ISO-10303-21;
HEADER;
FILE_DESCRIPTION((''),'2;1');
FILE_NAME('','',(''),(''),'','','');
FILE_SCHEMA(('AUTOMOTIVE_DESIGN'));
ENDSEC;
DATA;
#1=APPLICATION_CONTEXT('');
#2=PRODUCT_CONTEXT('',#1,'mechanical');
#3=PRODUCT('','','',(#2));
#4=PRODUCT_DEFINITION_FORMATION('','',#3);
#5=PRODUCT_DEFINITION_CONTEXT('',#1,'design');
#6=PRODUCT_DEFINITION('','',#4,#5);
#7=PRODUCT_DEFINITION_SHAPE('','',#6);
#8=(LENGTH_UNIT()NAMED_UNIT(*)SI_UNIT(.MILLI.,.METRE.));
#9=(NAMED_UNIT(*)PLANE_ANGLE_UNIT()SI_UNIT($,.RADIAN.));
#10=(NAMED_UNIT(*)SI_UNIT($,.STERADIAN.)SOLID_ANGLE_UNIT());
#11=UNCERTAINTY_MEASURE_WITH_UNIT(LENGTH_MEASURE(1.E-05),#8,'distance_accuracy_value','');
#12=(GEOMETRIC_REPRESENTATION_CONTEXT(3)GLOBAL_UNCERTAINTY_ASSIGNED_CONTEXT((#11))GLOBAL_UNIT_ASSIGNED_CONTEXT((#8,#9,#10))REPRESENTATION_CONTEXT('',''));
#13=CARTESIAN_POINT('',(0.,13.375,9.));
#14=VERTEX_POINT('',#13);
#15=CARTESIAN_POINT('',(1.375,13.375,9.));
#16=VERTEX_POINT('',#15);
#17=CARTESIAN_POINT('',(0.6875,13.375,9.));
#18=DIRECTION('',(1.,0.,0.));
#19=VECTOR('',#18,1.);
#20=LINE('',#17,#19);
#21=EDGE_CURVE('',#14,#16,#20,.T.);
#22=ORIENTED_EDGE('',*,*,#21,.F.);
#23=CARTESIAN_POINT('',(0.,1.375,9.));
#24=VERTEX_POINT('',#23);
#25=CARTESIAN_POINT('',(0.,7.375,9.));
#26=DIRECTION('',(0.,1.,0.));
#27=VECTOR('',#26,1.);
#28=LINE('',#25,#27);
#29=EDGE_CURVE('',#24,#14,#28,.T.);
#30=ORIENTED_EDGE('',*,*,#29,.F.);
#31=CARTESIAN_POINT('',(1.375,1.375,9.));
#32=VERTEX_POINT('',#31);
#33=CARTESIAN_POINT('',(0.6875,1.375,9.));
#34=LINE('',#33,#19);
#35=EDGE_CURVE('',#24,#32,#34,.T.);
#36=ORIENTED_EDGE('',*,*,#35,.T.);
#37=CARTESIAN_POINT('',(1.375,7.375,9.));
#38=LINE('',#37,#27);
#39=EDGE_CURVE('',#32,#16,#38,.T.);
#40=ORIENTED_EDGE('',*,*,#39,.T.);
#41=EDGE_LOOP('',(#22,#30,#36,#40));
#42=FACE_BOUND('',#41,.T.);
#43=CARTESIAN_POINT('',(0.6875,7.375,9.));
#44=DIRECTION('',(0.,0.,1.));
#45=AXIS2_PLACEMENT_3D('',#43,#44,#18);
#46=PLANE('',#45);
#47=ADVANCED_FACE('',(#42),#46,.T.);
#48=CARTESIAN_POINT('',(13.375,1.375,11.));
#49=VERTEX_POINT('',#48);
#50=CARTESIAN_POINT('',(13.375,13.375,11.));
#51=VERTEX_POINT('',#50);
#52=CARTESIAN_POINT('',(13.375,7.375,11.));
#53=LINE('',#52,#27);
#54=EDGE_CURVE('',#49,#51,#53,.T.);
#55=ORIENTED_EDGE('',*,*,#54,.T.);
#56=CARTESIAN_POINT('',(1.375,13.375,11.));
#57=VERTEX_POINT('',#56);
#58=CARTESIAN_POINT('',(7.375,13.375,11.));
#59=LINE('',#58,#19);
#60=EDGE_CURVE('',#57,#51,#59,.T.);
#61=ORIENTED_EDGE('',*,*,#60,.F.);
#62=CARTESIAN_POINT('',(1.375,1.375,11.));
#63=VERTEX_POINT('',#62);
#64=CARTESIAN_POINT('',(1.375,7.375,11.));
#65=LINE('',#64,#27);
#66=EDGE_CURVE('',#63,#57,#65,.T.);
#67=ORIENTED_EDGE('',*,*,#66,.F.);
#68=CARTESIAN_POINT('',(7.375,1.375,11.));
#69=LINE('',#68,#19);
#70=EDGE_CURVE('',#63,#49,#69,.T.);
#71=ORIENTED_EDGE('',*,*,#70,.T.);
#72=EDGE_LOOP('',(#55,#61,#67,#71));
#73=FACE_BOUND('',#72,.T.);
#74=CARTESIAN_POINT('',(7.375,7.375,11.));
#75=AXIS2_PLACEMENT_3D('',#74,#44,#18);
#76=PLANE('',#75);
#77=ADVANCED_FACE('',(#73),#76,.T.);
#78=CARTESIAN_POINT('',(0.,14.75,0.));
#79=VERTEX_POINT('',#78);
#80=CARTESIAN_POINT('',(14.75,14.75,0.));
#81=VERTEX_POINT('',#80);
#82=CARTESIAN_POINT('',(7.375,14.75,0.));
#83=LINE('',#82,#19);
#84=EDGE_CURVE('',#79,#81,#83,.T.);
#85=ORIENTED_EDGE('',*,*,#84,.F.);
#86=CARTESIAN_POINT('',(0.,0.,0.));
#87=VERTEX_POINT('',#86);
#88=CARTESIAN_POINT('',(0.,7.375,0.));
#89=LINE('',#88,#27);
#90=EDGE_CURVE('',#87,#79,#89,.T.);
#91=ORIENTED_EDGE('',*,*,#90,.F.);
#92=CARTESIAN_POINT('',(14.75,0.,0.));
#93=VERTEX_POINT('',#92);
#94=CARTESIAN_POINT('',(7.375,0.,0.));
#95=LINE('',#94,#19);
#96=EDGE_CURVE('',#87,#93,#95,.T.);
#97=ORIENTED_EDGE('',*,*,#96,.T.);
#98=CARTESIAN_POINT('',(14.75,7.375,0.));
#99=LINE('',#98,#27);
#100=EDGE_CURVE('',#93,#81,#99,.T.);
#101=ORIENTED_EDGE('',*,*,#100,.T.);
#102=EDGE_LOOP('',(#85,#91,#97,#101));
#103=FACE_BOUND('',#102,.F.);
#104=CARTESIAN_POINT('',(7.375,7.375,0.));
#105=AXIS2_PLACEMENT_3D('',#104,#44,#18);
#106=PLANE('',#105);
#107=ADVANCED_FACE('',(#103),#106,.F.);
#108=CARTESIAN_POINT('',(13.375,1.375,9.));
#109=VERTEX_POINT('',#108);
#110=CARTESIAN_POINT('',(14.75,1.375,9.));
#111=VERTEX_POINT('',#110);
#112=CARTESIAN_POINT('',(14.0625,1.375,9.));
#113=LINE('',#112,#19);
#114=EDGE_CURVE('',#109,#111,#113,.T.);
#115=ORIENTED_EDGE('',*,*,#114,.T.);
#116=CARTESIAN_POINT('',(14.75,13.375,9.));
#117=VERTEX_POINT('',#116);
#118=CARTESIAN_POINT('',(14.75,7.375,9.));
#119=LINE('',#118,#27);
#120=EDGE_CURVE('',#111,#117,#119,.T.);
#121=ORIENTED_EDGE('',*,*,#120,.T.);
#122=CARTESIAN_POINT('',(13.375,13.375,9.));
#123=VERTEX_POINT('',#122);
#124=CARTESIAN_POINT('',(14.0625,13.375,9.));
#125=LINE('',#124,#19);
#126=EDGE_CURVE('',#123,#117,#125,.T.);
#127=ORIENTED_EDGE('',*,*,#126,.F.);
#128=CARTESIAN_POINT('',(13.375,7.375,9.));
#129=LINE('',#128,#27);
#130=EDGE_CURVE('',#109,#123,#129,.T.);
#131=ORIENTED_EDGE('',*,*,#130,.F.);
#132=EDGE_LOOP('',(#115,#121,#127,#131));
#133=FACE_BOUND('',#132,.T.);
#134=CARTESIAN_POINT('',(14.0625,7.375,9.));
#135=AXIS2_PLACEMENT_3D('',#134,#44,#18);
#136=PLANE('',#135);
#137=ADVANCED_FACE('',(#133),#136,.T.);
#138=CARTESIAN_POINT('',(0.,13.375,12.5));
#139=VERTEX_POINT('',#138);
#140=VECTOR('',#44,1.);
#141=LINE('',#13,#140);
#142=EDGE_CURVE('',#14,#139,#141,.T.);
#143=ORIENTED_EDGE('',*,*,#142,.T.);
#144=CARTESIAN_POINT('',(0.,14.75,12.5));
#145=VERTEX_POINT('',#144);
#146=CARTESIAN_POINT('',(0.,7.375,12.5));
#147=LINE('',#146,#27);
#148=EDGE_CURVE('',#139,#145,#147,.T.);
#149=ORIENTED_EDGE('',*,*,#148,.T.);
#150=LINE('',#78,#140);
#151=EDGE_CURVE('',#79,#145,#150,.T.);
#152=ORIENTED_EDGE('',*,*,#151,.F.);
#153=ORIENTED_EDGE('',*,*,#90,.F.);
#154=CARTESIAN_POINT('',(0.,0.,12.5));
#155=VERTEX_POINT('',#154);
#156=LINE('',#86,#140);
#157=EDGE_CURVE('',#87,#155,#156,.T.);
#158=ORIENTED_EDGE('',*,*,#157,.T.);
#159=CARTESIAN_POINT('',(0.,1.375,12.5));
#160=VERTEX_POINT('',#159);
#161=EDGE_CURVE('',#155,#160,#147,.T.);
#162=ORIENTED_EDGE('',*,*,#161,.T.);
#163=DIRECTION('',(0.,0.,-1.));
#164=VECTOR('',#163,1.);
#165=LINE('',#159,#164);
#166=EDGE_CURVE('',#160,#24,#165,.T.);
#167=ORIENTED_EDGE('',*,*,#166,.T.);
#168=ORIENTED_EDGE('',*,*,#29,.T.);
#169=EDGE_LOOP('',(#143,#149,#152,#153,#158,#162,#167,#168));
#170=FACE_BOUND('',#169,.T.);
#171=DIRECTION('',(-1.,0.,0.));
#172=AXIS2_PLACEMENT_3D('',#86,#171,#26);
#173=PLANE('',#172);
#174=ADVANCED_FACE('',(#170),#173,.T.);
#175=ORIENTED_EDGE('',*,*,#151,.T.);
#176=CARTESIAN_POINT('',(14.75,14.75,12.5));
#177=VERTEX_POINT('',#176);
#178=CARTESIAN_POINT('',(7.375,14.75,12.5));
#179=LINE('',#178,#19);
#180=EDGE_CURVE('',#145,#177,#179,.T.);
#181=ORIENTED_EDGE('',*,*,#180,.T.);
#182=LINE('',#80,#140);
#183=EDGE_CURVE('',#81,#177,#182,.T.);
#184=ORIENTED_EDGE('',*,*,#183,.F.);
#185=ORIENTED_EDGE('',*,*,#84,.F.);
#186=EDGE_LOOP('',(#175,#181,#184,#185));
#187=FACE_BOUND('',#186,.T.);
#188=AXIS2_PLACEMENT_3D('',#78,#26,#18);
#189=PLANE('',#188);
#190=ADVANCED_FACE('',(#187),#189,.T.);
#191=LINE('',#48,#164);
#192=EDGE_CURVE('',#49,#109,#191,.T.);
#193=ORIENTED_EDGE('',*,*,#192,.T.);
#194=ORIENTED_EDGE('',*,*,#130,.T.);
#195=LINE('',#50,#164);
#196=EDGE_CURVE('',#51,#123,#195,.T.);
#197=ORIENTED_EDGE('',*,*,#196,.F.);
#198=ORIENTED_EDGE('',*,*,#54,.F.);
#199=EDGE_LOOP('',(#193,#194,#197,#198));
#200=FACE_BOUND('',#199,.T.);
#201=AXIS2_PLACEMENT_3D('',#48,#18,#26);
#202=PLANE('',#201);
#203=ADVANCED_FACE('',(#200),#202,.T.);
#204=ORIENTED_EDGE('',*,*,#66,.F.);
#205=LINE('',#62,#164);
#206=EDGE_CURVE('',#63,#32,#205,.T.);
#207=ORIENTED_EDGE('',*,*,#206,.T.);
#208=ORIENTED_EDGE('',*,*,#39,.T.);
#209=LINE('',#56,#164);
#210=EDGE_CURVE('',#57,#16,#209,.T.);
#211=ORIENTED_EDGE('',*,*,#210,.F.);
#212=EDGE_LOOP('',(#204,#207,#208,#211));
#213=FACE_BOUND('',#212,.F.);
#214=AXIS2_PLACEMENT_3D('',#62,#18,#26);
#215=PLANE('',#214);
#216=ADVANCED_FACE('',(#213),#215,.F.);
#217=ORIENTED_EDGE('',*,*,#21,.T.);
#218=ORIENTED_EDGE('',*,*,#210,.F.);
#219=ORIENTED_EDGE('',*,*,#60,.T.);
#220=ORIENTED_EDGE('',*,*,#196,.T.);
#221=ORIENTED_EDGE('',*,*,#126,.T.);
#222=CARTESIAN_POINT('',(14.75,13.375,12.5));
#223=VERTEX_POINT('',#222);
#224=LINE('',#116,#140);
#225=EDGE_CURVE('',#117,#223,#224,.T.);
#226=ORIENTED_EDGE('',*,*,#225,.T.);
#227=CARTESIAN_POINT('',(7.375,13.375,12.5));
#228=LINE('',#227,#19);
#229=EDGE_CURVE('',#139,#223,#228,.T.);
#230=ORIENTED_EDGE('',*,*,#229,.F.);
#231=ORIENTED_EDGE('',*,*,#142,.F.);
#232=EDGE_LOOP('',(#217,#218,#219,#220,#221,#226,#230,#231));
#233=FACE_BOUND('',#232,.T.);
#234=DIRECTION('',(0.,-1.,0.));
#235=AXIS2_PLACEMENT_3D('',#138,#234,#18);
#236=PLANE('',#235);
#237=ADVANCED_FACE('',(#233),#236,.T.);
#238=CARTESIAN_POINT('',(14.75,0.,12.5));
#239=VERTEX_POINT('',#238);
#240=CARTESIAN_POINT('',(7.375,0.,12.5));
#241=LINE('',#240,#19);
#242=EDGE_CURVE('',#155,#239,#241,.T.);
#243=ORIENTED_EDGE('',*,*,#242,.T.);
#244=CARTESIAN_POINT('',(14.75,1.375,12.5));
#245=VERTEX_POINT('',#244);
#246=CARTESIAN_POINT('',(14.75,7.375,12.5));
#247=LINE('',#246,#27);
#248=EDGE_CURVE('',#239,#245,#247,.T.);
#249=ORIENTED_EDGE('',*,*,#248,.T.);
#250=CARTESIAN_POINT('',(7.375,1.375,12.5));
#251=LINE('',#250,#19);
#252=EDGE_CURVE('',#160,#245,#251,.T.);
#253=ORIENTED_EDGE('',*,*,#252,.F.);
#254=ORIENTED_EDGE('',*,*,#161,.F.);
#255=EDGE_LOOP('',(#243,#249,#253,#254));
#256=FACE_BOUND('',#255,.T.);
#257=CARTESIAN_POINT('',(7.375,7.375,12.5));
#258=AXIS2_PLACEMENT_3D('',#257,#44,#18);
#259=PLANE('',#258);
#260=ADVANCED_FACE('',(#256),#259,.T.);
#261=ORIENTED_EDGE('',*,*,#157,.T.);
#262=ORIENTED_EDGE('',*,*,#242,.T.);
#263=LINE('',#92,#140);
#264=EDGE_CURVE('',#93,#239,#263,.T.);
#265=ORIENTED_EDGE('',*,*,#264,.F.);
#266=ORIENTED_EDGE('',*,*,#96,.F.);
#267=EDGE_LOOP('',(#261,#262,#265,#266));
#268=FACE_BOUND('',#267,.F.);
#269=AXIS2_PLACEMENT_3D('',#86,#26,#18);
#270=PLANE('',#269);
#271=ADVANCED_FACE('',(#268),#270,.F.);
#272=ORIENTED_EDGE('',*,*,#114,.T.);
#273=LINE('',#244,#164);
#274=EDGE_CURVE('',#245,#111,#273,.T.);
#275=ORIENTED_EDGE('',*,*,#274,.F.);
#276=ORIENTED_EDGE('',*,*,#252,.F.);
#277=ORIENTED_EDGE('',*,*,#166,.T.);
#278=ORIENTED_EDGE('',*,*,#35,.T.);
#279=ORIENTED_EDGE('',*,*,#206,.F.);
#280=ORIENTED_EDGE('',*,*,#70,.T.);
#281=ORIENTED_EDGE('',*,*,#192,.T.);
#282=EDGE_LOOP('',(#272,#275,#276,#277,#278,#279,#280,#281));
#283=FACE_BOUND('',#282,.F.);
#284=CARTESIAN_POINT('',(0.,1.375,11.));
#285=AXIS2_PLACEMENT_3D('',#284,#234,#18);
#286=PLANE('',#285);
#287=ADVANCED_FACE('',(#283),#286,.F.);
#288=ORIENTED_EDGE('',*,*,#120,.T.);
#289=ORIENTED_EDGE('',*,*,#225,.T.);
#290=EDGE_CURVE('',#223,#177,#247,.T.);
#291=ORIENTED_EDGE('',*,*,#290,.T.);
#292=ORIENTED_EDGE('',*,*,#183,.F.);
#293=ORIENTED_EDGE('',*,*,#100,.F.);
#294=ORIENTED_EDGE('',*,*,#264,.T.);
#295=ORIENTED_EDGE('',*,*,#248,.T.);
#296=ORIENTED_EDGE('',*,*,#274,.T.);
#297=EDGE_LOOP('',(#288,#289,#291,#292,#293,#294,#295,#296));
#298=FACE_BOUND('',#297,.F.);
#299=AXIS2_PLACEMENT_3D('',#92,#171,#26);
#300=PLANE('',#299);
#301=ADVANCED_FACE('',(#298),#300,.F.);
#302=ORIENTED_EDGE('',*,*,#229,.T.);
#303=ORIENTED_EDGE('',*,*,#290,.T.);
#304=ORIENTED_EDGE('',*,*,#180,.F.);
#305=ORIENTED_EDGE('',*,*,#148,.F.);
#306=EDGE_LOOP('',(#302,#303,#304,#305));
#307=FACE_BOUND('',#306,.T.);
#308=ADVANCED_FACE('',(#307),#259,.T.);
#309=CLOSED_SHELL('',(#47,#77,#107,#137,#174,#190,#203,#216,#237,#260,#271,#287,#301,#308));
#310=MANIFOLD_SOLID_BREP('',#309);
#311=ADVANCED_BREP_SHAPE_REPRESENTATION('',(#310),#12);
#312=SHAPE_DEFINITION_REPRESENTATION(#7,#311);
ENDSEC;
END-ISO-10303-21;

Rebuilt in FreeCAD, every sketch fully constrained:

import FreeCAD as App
import Part
import Sketcher
Q = App.Units.Quantity

doc = App.newDocument("Part")
body = doc.addObject("PartDesign::Body", "Body")

# Sketch on XY plane
sketch1 = doc.addObject("Sketcher::SketchObject", "Sketch")
body.addObject(sketch1)
sketch1.AttachmentSupport = (doc.XY_Plane, [""])
sketch1.MapMode = "FlatFace"
sketch1.addGeometry(Part.LineSegment(App.Vector(0, 14.75, 0), App.Vector(0, 0, 0)), False)
sketch1.addGeometry(Part.LineSegment(App.Vector(0, 0, 0), App.Vector(14.75, 0, 0)), False)
sketch1.addGeometry(Part.LineSegment(App.Vector(14.75, 0, 0), App.Vector(14.75, 14.75, 0)), False)
sketch1.addGeometry(Part.LineSegment(App.Vector(14.75, 14.75, 0), App.Vector(0, 14.75, 0)), False)
sketch1.addConstraint(Sketcher.Constraint("Coincident", 0, 2, 1, 1))
sketch1.addConstraint(Sketcher.Constraint("Coincident", 1, 2, 2, 1))
sketch1.addConstraint(Sketcher.Constraint("Coincident", 2, 2, 3, 1))
sketch1.addConstraint(Sketcher.Constraint("Coincident", 3, 2, 0, 1))
sketch1.addConstraint(Sketcher.Constraint("Vertical", 0))
sketch1.addConstraint(Sketcher.Constraint("Horizontal", 1))
sketch1.addConstraint(Sketcher.Constraint("Vertical", 2))
sketch1.addConstraint(Sketcher.Constraint("Horizontal", 3))
sketch1.addConstraint(Sketcher.Constraint("Coincident", 0, 2, -1, 1))
sketch1.addConstraint(Sketcher.Constraint("Equal", 3, 0))
sketch1.addConstraint(Sketcher.Constraint("DistanceX", 1, 1, 1, 2, Q("14.75 mm")))
pad1 = doc.addObject("PartDesign::Pad", "Pad")
body.addObject(pad1)
pad1.Profile = sketch1
pad1.Length = 12.5

# Sketch on XY plane
sketch2 = doc.addObject("Sketcher::SketchObject", "Sketch001")
body.addObject(sketch2)
sketch2.AttachmentSupport = (doc.XY_Plane, [""])
sketch2.MapMode = "FlatFace"
sketch2.AttachmentOffset = App.Placement(App.Vector(0, 0, 12.5), App.Rotation())
sketch2.addGeometry(Part.LineSegment(App.Vector(0, 13.375, 0), App.Vector(0, 1.375, 0)), False)
sketch2.addGeometry(Part.LineSegment(App.Vector(0, 1.375, 0), App.Vector(14.75, 1.375, 0)), False)
sketch2.addGeometry(Part.LineSegment(App.Vector(14.75, 1.375, 0), App.Vector(14.75, 13.375, 0)), False)
sketch2.addGeometry(Part.LineSegment(App.Vector(14.75, 13.375, 0), App.Vector(0, 13.375, 0)), False)
sketch2.addConstraint(Sketcher.Constraint("Coincident", 0, 2, 1, 1))
sketch2.addConstraint(Sketcher.Constraint("Coincident", 1, 2, 2, 1))
sketch2.addConstraint(Sketcher.Constraint("Coincident", 2, 2, 3, 1))
sketch2.addConstraint(Sketcher.Constraint("Coincident", 3, 2, 0, 1))
sketch2.addConstraint(Sketcher.Constraint("Vertical", 0))
sketch2.addConstraint(Sketcher.Constraint("Horizontal", 1))
sketch2.addConstraint(Sketcher.Constraint("Vertical", 2))
sketch2.addConstraint(Sketcher.Constraint("Horizontal", 3))
sketch2.addConstraint(Sketcher.Constraint("PointOnObject", 0, 2, -2))
sketch2.addConstraint(Sketcher.Constraint("DistanceY", 0, 2, 0, 1, Q("12 mm")))
sketch2.addConstraint(Sketcher.Constraint("DistanceX", 1, 1, 1, 2, Q("14.75 mm")))
sketch2.addConstraint(Sketcher.Constraint("DistanceY", -1, 1, 0, 2, Q("1.375 mm")))
pocket1 = doc.addObject("PartDesign::Pocket", "Pocket")
body.addObject(pocket1)
pocket1.Profile = sketch2
pocket1.Length = 1.5

# Sketch on XY plane
sketch3 = doc.addObject("Sketcher::SketchObject", "Sketch002")
body.addObject(sketch3)
sketch3.AttachmentSupport = (doc.XY_Plane, [""])
sketch3.MapMode = "FlatFace"
sketch3.AttachmentOffset = App.Placement(App.Vector(0, 0, 11), App.Rotation())
sketch3.addGeometry(Part.LineSegment(App.Vector(0, 13.375, 0), App.Vector(0, 1.375, 0)), False)
sketch3.addGeometry(Part.LineSegment(App.Vector(0, 1.375, 0), App.Vector(1.375, 1.375, 0)), False)
sketch3.addGeometry(Part.LineSegment(App.Vector(1.375, 1.375, 0), App.Vector(1.375, 13.375, 0)), False)
sketch3.addGeometry(Part.LineSegment(App.Vector(1.375, 13.375, 0), App.Vector(0, 13.375, 0)), False)
sketch3.addGeometry(Part.LineSegment(App.Vector(13.375, 13.375, 0), App.Vector(13.375, 1.375, 0)), False)
sketch3.addGeometry(Part.LineSegment(App.Vector(13.375, 1.375, 0), App.Vector(14.75, 1.375, 0)), False)
sketch3.addGeometry(Part.LineSegment(App.Vector(14.75, 1.375, 0), App.Vector(14.75, 13.375, 0)), False)
sketch3.addGeometry(Part.LineSegment(App.Vector(14.75, 13.375, 0), App.Vector(13.375, 13.375, 0)), False)
sketch3.addConstraint(Sketcher.Constraint("Coincident", 0, 2, 1, 1))
sketch3.addConstraint(Sketcher.Constraint("Coincident", 1, 2, 2, 1))
sketch3.addConstraint(Sketcher.Constraint("Coincident", 2, 2, 3, 1))
sketch3.addConstraint(Sketcher.Constraint("Coincident", 3, 2, 0, 1))
sketch3.addConstraint(Sketcher.Constraint("Coincident", 4, 2, 5, 1))
sketch3.addConstraint(Sketcher.Constraint("Coincident", 5, 2, 6, 1))
sketch3.addConstraint(Sketcher.Constraint("Coincident", 6, 2, 7, 1))
sketch3.addConstraint(Sketcher.Constraint("Coincident", 7, 2, 4, 1))
sketch3.addConstraint(Sketcher.Constraint("Vertical", 0))
sketch3.addConstraint(Sketcher.Constraint("Horizontal", 1))
sketch3.addConstraint(Sketcher.Constraint("Vertical", 2))
sketch3.addConstraint(Sketcher.Constraint("Horizontal", 3))
sketch3.addConstraint(Sketcher.Constraint("Vertical", 4))
sketch3.addConstraint(Sketcher.Constraint("Horizontal", 5))
sketch3.addConstraint(Sketcher.Constraint("Vertical", 6))
sketch3.addConstraint(Sketcher.Constraint("Horizontal", 7))
sketch3.addConstraint(Sketcher.Constraint("PointOnObject", 0, 2, -2))
sketch3.addConstraint(Sketcher.Constraint("Horizontal", 1, 2, 4, 2))
sketch3.addConstraint(Sketcher.Constraint("Horizontal", 3, 2, 6, 2))
sketch3.addConstraint(Sketcher.Constraint("Equal", 3, 5))
sketch3.addConstraint(Sketcher.Constraint("DistanceY", 0, 2, 0, 1, Q("12 mm")))
sketch3.addConstraint(Sketcher.Constraint("DistanceX", 1, 2, 4, 2, Q("12 mm")))
sketch3.addConstraint(Sketcher.Constraint("DistanceX", 1, 1, 1, 2, Q("1.375 mm")))
sketch3.addConstraint(Sketcher.Constraint("DistanceY", -1, 1, 0, 2, Q("1.375 mm")))
pocket2 = doc.addObject("PartDesign::Pocket", "Pocket001")
body.addObject(pocket2)
pocket2.Profile = sketch3
pocket2.Length = 2

doc.recompute()
